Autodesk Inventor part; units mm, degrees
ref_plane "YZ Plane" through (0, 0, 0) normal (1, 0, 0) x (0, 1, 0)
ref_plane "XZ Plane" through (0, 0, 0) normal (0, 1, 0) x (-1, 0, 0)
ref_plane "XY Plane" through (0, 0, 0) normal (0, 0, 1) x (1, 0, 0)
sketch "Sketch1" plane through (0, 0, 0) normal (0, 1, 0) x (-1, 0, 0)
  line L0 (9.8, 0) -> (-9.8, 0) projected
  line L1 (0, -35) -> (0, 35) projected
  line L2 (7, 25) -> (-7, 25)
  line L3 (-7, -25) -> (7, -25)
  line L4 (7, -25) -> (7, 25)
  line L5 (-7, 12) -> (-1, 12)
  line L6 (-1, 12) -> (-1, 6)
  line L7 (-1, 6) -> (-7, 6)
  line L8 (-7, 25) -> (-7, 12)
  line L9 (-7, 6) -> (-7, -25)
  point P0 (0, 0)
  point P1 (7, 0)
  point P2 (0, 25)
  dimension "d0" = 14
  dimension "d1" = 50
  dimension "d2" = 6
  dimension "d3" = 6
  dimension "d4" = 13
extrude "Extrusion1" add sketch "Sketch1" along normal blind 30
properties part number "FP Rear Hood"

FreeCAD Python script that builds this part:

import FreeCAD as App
import Part
import Sketcher
from FreeCAD import Vector


def add_polygon(sketch, points):
    """Adds a closed chain of lines whose ends are joined by coincident constraints."""
    first, n = sketch.GeometryCount, len(points)
    for a, b in zip(points, points[1:] + points[:1]):
        sketch.addGeometry(Part.LineSegment(App.Vector(*a, 0), App.Vector(*b, 0)), False)
    for i in range(n):
        sketch.addConstraint(Sketcher.Constraint("Coincident", first + i, 2, first + (i + 1) % n, 1))

doc = App.newDocument("Part")
body = doc.addObject("PartDesign::Body", "Body")

# Sketch on XZ plane
sketch1 = body.newObject("Sketcher::SketchObject", "Sketch")
sketch1.AttachmentSupport = (doc.getObject("XZ_Plane"), [""])
sketch1.MapMode = "FlatFace"
add_polygon(sketch1, [(-7, -25), (-7, 25), (7, 25), (7, 12), (1, 12), (1, 6), (7, 6), (7, -25)])  # lines 0-7
sketch1.addConstraint([
    Sketcher.Constraint("Vertical", 0),
    Sketcher.Constraint("Horizontal", 1),
    Sketcher.Constraint("Vertical", 2),
    Sketcher.Constraint("Horizontal", 3),
    Sketcher.Constraint("Vertical", 4),
    Sketcher.Constraint("Horizontal", 5),
    Sketcher.Constraint("Vertical", 6),
    Sketcher.Constraint("Horizontal", 7),
    Sketcher.Constraint("Symmetric", 0, 2, 6, 2, -1, 1),
    Sketcher.Constraint("Vertical", 2, 2, 5, 2),
    Sketcher.Constraint("Equal", 5, 4),
    Sketcher.Constraint("DistanceX", 1, 1, 1, 2, 14.0),
    Sketcher.Constraint("DistanceX", 3, 2, 3, 1, 6.0),
    Sketcher.Constraint("DistanceY", 0, 1, 0, 2, 50.0),
    Sketcher.Constraint("DistanceY", 2, 2, 2, 1, 13.0),
])
pad1 = body.newObject("PartDesign::Pad", "Pad")
pad1.Profile = sketch1
pad1.Length = 30
pad1.Reversed = True

doc.recompute()
